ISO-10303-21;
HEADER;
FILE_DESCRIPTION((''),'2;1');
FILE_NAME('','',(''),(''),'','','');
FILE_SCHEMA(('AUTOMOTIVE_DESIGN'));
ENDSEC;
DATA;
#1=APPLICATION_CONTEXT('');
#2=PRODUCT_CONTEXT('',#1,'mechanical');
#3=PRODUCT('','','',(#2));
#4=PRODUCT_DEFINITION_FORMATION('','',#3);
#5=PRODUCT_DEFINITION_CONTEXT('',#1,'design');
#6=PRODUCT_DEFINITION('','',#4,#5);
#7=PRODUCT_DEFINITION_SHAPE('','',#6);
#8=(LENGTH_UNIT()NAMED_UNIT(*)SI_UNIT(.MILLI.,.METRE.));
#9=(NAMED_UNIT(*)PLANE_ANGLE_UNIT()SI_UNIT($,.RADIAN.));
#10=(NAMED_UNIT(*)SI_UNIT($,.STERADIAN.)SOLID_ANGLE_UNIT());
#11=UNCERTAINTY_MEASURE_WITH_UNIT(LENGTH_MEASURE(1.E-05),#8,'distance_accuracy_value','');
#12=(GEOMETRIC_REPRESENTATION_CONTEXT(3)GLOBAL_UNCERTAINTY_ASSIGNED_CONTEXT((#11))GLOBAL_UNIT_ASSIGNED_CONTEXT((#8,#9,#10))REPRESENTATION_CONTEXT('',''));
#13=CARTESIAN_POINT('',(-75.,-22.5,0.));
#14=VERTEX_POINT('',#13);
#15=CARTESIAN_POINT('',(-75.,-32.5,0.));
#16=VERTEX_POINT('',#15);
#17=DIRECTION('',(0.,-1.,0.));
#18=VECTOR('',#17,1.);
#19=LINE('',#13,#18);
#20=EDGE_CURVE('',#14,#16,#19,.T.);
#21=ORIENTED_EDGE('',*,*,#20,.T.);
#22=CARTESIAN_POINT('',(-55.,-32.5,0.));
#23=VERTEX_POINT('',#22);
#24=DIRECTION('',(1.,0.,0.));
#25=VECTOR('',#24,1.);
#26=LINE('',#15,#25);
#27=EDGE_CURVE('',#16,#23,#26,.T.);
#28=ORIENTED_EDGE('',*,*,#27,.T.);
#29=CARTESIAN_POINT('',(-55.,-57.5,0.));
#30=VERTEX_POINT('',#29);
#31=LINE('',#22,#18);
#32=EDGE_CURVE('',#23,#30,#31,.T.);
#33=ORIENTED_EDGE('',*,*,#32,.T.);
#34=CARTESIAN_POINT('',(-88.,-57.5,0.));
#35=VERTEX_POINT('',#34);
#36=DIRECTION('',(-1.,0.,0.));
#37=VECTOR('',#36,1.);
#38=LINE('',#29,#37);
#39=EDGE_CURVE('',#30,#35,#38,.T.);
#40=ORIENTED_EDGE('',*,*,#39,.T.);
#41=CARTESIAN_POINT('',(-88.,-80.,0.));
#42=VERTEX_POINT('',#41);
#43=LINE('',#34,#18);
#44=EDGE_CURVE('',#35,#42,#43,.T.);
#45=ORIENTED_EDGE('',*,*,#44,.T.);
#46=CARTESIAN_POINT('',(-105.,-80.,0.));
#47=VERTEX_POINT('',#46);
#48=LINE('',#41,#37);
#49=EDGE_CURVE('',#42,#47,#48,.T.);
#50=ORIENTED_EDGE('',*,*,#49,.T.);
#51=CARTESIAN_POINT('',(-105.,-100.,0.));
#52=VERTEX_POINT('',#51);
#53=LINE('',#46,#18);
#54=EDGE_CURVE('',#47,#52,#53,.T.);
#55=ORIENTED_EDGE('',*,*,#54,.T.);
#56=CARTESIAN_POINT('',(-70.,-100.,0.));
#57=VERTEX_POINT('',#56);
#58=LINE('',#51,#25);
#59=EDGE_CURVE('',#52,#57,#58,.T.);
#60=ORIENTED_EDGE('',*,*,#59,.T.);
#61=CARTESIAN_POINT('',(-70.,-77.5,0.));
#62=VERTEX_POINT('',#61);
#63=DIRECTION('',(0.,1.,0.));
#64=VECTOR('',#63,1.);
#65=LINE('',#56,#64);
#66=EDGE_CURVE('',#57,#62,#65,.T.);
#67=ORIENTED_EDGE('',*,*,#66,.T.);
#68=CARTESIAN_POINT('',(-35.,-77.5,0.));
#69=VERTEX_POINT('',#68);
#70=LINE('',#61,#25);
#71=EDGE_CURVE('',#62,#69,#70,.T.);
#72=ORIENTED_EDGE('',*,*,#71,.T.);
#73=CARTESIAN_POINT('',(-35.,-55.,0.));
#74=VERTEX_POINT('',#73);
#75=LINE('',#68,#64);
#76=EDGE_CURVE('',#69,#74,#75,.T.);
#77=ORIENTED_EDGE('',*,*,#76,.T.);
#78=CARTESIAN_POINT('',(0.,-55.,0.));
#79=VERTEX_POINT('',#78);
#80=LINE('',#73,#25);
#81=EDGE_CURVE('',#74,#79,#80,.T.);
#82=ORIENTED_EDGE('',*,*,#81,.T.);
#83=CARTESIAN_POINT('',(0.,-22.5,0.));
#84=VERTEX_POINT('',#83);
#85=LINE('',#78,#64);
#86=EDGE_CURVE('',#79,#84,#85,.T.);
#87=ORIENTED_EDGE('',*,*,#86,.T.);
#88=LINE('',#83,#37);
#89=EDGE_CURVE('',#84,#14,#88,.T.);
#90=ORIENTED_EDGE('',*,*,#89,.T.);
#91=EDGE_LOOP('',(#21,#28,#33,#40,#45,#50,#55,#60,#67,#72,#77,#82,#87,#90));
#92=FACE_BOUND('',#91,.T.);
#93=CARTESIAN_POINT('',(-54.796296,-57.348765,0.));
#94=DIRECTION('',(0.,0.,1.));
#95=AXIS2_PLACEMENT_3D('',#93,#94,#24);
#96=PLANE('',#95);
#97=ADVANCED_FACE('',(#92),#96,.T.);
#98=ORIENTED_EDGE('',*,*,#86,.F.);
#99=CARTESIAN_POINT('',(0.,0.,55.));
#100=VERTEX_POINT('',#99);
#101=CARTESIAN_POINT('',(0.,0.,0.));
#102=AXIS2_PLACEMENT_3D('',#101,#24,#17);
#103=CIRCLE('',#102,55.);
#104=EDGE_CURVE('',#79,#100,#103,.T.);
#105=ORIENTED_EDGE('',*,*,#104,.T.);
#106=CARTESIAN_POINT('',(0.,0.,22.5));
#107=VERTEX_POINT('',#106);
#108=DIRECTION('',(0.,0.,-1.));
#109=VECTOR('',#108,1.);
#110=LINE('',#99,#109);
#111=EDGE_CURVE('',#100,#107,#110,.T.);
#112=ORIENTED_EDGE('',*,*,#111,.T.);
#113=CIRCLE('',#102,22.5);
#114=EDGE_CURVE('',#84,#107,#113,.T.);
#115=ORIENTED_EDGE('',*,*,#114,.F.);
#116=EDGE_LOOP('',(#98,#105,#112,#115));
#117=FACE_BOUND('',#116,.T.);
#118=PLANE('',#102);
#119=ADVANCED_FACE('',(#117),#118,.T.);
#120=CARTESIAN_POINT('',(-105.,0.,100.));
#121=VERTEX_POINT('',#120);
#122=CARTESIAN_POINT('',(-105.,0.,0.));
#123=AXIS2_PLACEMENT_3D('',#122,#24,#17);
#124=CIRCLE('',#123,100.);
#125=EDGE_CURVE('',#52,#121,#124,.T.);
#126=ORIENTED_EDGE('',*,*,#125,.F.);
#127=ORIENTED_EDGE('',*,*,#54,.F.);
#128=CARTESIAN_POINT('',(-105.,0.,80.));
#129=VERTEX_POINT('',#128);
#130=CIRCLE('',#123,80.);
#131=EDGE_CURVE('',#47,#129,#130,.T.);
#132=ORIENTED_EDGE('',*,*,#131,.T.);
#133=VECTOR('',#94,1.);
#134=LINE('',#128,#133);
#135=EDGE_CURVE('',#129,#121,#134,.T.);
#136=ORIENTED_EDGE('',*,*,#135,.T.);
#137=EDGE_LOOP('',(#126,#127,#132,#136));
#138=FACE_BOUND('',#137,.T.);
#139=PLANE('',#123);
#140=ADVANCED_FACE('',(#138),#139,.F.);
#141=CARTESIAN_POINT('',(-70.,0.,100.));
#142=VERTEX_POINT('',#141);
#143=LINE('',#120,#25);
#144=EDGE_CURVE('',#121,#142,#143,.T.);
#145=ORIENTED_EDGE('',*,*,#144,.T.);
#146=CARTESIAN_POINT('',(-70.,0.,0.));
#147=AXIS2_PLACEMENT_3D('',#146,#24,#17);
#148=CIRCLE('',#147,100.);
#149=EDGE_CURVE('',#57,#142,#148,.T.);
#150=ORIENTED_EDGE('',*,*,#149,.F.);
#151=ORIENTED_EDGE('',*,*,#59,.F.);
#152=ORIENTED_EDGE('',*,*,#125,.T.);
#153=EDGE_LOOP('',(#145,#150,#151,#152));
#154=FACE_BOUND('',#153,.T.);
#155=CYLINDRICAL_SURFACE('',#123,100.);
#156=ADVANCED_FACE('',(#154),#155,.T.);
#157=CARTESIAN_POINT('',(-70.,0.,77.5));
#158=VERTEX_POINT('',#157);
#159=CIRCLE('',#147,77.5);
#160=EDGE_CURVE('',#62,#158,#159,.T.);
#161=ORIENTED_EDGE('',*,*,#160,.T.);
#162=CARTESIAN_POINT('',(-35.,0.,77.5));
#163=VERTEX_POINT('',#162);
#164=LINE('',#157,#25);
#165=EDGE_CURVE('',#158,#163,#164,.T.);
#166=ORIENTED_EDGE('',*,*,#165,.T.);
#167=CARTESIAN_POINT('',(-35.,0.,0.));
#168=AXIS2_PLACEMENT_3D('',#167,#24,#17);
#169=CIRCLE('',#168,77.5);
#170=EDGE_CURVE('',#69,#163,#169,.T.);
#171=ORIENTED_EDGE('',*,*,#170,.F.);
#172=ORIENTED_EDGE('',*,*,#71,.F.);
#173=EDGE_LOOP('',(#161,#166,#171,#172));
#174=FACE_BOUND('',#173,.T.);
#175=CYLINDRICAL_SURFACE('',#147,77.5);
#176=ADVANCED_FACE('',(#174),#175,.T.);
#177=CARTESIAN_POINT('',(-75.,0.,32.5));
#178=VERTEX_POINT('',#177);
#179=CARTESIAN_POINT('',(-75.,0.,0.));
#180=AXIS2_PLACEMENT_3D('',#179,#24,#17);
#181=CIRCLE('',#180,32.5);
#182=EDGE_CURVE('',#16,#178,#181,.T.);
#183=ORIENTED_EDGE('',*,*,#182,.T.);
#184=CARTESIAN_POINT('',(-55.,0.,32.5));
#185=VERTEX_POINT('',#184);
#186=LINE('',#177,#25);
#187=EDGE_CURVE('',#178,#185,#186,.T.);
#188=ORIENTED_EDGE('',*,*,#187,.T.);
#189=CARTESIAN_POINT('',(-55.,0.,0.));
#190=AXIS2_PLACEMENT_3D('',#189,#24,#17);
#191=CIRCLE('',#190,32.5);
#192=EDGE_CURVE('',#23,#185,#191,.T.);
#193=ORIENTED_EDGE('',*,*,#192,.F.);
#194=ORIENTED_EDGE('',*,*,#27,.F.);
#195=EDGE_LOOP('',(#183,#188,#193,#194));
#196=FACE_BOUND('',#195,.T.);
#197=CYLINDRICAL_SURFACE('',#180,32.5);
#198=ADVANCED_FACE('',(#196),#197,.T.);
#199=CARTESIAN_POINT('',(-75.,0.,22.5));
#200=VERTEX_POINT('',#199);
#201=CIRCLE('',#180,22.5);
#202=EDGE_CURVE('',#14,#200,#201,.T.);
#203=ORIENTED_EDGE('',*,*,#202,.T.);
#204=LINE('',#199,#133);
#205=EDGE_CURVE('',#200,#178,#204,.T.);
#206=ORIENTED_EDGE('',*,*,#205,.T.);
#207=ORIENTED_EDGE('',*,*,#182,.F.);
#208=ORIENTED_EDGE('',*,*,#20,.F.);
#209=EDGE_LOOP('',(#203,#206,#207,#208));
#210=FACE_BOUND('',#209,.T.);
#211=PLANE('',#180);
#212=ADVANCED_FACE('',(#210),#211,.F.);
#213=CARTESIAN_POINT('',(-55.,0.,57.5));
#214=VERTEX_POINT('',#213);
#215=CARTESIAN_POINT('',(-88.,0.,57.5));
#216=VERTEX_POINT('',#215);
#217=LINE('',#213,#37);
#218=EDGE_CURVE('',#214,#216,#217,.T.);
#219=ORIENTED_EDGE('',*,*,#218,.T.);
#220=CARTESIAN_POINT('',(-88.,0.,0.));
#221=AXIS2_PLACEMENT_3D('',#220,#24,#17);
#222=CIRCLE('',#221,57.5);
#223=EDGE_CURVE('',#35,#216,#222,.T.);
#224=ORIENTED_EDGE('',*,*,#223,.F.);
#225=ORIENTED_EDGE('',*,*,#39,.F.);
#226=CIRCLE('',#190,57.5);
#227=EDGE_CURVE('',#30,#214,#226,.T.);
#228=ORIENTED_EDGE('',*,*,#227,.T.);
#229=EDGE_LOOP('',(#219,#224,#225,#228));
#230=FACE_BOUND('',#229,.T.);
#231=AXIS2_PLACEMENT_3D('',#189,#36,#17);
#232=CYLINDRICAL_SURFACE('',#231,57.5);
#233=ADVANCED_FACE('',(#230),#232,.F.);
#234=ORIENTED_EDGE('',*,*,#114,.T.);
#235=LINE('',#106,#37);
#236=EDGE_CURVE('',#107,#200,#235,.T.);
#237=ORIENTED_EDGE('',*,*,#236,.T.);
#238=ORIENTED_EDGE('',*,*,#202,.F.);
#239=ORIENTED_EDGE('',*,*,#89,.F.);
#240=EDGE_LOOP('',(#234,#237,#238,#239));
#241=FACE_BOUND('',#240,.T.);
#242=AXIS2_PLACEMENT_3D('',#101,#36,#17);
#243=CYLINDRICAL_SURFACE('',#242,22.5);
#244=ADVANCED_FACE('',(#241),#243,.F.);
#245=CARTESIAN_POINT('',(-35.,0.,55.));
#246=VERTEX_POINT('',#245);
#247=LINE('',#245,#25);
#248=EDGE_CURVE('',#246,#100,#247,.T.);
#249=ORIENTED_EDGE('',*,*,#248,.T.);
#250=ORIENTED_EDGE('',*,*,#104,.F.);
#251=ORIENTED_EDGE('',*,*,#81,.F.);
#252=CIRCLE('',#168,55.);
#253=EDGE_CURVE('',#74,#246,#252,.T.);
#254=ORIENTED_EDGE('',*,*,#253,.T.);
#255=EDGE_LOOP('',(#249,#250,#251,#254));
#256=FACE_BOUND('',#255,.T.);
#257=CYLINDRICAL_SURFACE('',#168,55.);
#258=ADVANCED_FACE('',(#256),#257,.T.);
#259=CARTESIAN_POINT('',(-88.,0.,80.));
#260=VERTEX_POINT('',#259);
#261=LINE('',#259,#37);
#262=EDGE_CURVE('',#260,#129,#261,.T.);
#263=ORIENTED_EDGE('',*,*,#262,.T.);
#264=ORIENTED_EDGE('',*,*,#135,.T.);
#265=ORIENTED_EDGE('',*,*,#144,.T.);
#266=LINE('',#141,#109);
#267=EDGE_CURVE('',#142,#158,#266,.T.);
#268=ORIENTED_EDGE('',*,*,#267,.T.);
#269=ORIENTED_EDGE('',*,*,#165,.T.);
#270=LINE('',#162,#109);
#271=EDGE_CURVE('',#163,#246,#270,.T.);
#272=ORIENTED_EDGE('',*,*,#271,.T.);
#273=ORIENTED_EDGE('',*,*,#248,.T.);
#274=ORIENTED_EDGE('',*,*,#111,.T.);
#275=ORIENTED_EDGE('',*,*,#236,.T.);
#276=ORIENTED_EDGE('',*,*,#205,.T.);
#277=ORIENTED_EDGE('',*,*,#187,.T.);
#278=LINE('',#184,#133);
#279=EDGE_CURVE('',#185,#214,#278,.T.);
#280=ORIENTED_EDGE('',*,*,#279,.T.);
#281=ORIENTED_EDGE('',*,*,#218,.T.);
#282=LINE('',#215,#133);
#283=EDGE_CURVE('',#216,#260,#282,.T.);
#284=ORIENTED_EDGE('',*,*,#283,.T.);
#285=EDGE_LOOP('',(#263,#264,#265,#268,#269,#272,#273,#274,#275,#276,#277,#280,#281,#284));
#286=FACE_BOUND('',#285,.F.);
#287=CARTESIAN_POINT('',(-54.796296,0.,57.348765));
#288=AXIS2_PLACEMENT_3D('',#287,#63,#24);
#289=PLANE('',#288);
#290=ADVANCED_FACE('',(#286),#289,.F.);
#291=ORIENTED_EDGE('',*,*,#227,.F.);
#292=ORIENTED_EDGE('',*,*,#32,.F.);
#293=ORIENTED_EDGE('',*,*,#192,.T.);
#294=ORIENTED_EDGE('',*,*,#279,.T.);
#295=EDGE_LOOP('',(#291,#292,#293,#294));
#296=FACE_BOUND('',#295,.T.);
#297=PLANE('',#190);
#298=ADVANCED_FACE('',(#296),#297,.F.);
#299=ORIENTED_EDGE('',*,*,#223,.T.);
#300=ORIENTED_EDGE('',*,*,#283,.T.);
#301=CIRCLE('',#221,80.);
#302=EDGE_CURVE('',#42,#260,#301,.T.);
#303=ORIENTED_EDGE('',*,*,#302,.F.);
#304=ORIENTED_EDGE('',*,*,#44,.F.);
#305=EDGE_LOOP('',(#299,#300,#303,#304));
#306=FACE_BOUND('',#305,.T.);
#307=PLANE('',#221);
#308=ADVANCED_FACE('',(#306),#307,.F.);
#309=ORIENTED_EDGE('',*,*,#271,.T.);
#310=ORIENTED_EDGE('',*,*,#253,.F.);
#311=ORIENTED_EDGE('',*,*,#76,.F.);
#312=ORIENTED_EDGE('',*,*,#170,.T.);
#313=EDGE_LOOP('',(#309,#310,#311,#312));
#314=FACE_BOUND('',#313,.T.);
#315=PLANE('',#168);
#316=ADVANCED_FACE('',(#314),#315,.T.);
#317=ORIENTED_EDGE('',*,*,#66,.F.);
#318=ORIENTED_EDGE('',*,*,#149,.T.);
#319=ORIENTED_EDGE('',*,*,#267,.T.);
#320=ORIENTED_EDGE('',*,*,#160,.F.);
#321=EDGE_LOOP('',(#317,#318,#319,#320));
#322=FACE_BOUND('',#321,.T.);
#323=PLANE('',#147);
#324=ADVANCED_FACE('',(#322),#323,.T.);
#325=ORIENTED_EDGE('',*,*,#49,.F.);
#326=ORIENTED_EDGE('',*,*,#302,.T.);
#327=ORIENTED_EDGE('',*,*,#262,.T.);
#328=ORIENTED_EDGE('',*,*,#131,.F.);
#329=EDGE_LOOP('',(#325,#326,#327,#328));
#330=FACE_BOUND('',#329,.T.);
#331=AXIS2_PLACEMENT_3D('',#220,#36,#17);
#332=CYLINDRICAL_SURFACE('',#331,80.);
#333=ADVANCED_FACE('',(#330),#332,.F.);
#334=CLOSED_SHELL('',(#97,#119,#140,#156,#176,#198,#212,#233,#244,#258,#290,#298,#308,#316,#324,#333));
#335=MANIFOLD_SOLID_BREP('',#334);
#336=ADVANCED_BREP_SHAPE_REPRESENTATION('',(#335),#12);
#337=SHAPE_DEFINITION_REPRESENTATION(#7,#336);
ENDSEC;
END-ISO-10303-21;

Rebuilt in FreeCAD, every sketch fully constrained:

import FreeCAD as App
import Part
import Sketcher

V = App.Vector
Q = App.Units.Quantity


def add_polygon(sketch, points):
    """Adds a closed chain of lines whose ends are joined by coincident constraints."""
    first, n = sketch.GeometryCount, len(points)
    for a, b in zip(points, points[1:] + points[:1]):
        sketch.addGeometry(Part.LineSegment(App.Vector(*a, 0), App.Vector(*b, 0)), False)
    for i in range(n):
        sketch.addConstraint(Sketcher.Constraint("Coincident", first + i, 2, first + (i + 1) % n, 1))

doc = App.newDocument("Part")
body = doc.addObject("PartDesign::Body", "Body")

# Sketch on XY plane
sketch1 = body.newObject("Sketcher::SketchObject", "Sketch")
sketch1.AttachmentSupport = (doc.getObject("XY_Plane"), [""])
sketch1.MapMode = "FlatFace"
add_polygon(sketch1, [(0, -22), (-75, -22), (-75, -32), (-55, -32), (-55, -58), (-88, -58), (-88, -80), (-105, -80), (-105, -100), (-70, -100), (-70, -78), (-35, -78), (-35, -55), (0, -55)])  # lines 0-13
sketch1.addConstraint([
    Sketcher.Constraint("Horizontal", 0),
    Sketcher.Constraint("Vertical", 1),
    Sketcher.Constraint("Horizontal", 2),
    Sketcher.Constraint("Vertical", 3),
    Sketcher.Constraint("Horizontal", 4),
    Sketcher.Constraint("Vertical", 5),
    Sketcher.Constraint("Horizontal", 6),
    Sketcher.Constraint("Vertical", 7),
    Sketcher.Constraint("Horizontal", 8),
    Sketcher.Constraint("Vertical", 9),
    Sketcher.Constraint("Horizontal", 10),
    Sketcher.Constraint("Vertical", 11),
    Sketcher.Constraint("Horizontal", 12),
    Sketcher.Constraint("Vertical", 13),
    Sketcher.Constraint("PointOnObject", 12, 2, -2),
    Sketcher.Constraint("Equal", 8, 10),
    Sketcher.Constraint("Equal", 10, 12),
    Sketcher.Constraint("Equal", 2, 7),
    Sketcher.Constraint("Equal", 5, 9),
    Sketcher.Constraint("Equal", 9, 11),
    Sketcher.Constraint("DistanceX", 0, 2, 0, 1, Q("75 mm")),
    Sketcher.Constraint("DistanceX", 2, 1, 2, 2, Q("20 mm")),
    Sketcher.Constraint("DistanceX", 4, 2, 4, 1, Q("33 mm")),
    Sketcher.Constraint("DistanceX", 6, 2, 6, 1, Q("17 mm")),
    Sketcher.Constraint("DistanceY", 1, 2, 1, 1, Q("10 mm")),
    Sketcher.Constraint("DistanceY", 3, 2, 3, 1, Q("25 mm")),
    Sketcher.Constraint("DistanceY", 5, 2, 5, 1, Q("22.5 mm")),
    Sketcher.Constraint("DistanceY", 5, 2, -1, 1, Q("80 mm")),
])
revolution = body.newObject("PartDesign::Revolution", "Revolution")
revolution.Profile = sketch1
revolution.ReferenceAxis = (sketch1, ["H_Axis"])
revolution.Angle = 270

doc.recompute()
